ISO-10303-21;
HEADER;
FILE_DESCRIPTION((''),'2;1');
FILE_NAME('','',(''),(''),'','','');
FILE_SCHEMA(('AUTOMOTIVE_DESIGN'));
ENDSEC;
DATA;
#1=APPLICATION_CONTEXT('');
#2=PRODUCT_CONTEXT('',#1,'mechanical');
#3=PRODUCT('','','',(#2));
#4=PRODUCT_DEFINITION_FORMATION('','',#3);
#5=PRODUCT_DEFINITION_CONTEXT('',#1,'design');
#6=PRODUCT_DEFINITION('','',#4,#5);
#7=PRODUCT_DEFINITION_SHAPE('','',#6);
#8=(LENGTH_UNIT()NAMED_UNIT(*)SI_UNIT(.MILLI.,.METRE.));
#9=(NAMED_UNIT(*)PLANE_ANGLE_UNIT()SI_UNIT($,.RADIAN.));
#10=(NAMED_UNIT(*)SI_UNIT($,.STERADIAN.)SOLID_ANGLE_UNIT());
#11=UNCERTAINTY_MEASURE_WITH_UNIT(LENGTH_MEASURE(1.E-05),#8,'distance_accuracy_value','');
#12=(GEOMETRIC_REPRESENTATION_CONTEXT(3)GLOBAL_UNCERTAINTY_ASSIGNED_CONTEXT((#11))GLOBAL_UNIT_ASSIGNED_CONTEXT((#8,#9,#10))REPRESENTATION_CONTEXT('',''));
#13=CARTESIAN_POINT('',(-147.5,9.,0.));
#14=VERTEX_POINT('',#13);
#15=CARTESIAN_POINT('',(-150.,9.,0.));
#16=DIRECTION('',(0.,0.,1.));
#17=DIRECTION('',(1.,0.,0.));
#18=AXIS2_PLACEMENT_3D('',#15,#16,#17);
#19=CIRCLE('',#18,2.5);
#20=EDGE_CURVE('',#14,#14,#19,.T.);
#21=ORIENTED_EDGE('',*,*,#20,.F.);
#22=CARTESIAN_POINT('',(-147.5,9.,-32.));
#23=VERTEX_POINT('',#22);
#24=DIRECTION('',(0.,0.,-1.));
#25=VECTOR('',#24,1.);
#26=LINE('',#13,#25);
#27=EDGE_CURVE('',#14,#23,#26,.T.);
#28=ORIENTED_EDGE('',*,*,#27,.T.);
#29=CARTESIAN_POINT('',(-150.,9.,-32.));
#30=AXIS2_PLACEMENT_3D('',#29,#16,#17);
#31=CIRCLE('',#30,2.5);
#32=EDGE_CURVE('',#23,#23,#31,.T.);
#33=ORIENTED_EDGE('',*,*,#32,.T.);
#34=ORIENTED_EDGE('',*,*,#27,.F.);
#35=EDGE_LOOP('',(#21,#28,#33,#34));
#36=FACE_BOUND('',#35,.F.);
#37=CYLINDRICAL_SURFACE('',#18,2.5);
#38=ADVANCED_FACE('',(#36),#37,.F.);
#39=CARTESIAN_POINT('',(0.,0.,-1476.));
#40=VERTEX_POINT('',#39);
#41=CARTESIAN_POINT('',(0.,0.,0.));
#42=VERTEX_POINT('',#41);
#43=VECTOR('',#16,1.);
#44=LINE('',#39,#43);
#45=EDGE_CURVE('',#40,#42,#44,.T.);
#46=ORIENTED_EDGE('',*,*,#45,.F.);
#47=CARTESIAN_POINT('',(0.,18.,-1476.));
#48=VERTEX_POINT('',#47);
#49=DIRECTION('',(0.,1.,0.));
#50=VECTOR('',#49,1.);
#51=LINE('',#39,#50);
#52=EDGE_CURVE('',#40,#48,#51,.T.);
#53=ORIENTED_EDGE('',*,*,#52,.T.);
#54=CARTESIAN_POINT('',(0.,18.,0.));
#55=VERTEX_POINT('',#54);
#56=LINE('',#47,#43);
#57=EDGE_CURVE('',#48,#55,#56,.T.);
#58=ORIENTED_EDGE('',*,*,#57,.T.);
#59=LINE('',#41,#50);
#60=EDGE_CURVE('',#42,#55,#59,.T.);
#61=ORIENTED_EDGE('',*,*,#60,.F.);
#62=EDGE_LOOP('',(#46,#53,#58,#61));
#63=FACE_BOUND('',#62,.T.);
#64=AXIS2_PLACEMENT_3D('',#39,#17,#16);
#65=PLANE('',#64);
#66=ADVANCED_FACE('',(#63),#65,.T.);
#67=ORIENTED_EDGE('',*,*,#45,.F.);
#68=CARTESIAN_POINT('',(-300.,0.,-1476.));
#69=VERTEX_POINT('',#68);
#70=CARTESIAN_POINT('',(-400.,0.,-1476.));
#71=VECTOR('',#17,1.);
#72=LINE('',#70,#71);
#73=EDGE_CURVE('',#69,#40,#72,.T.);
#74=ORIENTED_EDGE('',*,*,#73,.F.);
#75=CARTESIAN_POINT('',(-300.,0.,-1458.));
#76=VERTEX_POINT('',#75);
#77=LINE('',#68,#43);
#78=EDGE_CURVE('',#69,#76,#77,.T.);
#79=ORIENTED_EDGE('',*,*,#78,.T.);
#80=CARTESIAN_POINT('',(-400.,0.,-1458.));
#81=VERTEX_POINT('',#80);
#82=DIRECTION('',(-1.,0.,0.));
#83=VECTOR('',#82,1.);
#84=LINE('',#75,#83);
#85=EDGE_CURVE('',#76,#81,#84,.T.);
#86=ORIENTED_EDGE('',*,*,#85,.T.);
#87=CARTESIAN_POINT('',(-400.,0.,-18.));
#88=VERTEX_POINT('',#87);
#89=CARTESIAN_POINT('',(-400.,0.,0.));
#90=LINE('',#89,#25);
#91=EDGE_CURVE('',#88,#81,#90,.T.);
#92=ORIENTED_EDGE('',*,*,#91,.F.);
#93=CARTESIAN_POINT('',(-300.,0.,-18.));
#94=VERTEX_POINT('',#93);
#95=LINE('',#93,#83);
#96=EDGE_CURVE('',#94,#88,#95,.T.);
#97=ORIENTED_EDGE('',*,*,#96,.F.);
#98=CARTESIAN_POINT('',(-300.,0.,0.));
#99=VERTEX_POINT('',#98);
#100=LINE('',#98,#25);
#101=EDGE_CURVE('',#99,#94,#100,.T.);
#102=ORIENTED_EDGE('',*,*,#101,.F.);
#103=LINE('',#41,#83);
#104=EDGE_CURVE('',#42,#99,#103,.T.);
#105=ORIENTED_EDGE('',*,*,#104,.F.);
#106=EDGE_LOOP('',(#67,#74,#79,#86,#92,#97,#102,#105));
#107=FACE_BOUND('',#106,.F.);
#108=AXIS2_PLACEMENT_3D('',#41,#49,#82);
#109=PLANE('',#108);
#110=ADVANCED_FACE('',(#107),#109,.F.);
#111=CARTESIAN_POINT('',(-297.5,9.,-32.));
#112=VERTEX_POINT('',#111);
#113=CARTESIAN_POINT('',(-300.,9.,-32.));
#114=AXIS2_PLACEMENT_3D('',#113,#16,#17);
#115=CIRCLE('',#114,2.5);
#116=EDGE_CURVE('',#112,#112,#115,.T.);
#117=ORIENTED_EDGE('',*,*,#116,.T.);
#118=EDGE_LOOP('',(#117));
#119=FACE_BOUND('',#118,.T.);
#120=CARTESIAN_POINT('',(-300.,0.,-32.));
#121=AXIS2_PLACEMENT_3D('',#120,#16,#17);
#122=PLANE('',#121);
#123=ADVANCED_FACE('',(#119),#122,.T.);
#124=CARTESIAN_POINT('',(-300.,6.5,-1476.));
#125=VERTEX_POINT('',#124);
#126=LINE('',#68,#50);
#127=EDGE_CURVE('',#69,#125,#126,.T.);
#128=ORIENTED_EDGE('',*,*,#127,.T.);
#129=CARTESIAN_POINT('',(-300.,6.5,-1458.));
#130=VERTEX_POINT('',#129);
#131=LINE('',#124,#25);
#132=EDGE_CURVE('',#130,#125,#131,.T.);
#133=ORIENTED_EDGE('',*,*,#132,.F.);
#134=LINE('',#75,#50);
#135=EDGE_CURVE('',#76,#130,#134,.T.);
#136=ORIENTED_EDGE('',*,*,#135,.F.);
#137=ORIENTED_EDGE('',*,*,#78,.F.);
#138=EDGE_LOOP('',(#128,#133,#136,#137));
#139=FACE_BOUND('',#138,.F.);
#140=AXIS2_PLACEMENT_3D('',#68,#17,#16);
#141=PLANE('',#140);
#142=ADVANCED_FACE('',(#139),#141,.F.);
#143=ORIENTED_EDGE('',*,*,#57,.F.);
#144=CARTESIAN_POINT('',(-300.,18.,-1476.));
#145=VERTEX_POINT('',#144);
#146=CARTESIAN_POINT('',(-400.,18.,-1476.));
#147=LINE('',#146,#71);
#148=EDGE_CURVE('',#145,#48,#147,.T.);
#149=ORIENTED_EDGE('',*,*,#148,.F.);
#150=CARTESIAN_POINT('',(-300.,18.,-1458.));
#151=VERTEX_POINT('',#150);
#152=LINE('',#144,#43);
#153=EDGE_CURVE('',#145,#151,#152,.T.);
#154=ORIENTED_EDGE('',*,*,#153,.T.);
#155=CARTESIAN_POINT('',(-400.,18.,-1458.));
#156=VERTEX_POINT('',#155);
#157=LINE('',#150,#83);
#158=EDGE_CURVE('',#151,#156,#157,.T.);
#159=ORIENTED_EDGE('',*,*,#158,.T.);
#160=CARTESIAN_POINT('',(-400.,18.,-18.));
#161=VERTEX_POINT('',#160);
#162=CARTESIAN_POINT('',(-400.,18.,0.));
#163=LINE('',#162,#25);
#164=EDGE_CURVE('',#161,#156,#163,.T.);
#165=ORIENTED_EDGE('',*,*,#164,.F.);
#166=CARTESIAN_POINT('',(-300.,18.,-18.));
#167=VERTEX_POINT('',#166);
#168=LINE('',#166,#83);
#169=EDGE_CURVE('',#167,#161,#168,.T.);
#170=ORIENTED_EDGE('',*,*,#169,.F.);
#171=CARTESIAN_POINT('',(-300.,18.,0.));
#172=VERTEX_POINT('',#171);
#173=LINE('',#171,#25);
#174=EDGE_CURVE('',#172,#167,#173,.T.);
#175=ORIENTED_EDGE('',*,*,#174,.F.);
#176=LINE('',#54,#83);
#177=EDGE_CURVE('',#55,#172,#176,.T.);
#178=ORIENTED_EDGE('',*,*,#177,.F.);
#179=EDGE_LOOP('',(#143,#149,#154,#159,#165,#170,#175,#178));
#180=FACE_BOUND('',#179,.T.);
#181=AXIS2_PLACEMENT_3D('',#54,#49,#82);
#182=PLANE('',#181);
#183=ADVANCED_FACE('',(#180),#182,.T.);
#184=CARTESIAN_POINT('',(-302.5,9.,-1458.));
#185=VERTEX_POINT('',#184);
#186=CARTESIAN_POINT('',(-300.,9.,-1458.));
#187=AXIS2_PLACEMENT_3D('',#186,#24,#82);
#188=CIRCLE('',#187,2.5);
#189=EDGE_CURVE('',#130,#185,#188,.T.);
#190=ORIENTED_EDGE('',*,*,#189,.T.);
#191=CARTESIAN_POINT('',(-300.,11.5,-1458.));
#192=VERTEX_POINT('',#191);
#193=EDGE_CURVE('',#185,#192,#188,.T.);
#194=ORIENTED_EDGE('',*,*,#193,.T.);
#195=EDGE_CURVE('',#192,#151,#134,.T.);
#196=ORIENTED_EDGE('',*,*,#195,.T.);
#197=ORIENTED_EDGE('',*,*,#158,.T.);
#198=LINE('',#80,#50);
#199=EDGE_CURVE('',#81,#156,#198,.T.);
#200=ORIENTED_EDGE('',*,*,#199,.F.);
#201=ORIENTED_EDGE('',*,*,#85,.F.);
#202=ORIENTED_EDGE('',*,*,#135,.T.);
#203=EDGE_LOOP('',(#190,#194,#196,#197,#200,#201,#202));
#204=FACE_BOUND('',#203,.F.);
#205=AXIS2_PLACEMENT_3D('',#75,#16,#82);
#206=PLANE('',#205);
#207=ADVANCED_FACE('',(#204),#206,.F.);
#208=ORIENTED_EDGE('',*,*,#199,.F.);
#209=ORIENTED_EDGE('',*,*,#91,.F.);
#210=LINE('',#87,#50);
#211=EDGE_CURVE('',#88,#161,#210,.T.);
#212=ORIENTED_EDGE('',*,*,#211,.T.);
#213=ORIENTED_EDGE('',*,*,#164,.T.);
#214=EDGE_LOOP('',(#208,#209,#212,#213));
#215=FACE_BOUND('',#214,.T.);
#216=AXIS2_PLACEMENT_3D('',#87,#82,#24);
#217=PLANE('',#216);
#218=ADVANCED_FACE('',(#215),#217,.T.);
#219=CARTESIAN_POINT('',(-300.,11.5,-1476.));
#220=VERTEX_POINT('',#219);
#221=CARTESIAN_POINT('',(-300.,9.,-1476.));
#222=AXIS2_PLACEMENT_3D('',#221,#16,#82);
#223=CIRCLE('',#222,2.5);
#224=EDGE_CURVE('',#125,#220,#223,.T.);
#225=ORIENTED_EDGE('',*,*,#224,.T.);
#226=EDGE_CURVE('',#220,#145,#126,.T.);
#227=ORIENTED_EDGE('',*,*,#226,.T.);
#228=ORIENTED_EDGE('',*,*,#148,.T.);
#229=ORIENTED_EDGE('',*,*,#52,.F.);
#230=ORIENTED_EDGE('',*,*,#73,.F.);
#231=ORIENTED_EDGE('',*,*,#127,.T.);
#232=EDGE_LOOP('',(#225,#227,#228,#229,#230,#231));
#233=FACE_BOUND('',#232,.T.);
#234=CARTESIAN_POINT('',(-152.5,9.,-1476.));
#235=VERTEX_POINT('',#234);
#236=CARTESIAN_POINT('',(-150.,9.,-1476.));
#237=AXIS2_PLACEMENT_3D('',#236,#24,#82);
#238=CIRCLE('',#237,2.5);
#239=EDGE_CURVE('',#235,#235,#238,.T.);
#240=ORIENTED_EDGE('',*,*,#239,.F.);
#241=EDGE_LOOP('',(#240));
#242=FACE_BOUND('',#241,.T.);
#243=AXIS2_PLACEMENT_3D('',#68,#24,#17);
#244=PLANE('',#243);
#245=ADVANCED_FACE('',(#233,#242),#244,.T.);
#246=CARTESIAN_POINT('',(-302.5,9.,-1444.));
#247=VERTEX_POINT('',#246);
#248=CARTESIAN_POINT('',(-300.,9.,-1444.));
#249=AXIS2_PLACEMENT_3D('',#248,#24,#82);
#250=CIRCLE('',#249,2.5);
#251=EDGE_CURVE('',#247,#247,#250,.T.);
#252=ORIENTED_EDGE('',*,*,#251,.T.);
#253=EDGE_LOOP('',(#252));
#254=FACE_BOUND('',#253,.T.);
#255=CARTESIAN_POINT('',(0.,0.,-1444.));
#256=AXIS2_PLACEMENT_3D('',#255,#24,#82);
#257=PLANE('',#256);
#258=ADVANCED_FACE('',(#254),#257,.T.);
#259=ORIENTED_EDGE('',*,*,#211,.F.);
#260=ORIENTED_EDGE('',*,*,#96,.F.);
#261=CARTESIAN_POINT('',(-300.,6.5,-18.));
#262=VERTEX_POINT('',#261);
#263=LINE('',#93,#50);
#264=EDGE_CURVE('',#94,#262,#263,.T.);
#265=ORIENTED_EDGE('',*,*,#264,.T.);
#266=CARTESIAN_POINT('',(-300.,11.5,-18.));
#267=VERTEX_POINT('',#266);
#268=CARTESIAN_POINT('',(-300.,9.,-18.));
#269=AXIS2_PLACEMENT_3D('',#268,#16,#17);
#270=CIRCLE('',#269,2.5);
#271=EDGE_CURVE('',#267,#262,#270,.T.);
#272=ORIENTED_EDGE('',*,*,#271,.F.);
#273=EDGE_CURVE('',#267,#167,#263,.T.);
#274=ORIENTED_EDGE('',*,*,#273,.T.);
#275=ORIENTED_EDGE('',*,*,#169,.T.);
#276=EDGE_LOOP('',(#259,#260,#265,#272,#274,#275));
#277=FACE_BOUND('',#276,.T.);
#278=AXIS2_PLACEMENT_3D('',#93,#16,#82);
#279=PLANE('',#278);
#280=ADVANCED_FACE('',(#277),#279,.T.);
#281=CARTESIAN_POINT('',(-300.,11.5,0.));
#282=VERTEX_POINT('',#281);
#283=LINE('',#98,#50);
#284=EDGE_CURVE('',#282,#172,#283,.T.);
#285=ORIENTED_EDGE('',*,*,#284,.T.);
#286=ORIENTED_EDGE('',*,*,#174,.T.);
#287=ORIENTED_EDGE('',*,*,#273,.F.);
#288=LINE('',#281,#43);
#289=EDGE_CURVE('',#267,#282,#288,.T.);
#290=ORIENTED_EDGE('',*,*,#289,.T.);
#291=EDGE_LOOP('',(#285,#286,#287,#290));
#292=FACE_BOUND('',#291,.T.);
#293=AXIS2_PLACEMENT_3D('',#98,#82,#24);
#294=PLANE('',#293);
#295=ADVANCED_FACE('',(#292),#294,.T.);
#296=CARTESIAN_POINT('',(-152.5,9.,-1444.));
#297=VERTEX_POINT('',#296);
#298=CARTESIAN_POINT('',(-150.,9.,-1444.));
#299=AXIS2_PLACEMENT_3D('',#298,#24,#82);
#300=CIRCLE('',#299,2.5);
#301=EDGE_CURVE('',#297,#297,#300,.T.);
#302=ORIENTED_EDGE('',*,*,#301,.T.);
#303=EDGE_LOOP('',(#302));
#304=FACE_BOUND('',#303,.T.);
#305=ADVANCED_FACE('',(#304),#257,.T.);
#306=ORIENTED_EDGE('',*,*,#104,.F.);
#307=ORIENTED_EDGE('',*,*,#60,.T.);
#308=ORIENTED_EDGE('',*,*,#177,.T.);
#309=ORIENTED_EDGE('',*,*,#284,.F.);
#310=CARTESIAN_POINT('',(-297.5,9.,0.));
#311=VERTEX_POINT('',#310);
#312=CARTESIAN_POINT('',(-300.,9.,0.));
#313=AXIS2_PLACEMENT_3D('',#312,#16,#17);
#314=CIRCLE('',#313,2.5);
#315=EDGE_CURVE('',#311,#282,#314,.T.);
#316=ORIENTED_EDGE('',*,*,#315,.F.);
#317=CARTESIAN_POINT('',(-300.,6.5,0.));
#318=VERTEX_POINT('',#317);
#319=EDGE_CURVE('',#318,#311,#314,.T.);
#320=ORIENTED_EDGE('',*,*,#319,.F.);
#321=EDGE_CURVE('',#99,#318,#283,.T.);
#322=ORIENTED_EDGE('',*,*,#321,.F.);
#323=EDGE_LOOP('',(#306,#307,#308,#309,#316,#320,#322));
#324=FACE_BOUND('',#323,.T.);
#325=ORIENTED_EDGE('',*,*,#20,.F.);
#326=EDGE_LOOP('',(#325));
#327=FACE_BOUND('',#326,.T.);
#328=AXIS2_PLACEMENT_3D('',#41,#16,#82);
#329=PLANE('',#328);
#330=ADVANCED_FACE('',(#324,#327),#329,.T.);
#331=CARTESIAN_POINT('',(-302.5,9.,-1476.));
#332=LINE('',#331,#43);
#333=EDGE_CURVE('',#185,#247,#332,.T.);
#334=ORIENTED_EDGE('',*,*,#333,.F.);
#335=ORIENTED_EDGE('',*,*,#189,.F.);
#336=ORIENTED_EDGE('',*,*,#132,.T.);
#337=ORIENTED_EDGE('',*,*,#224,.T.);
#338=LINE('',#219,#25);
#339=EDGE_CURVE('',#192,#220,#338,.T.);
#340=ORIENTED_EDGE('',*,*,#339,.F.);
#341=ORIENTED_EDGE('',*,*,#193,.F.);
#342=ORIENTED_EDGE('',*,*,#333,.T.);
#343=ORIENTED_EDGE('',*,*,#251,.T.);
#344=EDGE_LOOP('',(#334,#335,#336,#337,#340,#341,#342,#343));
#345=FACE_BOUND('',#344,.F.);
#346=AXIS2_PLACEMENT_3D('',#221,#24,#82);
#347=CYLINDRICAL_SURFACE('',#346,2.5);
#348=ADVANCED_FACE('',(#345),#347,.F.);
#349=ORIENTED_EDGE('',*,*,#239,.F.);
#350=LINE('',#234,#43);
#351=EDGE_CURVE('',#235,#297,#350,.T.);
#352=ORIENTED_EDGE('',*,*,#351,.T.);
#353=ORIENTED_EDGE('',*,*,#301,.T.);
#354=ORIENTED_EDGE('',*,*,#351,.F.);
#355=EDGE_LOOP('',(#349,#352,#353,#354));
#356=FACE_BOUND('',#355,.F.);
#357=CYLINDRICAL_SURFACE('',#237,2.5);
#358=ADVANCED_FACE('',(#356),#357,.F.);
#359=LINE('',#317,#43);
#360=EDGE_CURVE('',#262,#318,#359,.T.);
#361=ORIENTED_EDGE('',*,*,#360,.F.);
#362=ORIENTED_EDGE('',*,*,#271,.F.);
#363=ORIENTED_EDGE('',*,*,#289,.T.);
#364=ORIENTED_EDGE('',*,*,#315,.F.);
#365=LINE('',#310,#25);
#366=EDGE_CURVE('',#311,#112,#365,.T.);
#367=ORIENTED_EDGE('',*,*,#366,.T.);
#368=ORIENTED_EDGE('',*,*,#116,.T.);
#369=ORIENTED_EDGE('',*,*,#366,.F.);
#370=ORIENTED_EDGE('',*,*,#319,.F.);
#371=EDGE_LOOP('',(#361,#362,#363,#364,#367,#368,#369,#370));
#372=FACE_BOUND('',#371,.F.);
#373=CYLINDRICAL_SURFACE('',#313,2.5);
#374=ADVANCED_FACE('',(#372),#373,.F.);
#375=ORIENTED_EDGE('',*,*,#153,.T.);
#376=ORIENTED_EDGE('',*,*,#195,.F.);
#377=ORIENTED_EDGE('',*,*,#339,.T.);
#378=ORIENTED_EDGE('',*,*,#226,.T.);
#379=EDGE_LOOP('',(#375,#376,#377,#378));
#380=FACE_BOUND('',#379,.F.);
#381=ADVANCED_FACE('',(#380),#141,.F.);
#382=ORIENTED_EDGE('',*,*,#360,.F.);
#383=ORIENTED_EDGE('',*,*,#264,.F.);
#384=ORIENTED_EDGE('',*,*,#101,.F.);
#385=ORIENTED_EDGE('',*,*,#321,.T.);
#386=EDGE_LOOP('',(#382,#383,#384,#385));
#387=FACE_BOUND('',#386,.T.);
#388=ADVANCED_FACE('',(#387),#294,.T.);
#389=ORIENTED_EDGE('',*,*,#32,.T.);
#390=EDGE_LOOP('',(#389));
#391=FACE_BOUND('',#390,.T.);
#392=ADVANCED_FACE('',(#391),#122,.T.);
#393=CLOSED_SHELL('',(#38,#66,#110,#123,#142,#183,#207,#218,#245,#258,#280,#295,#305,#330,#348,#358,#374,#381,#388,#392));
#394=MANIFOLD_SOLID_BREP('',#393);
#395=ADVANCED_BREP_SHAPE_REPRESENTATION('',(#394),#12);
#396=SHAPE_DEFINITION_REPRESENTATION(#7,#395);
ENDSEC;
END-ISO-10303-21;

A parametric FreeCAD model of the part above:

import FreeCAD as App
import Part
import Sketcher
from FreeCAD import Vector


def add_polygon(sketch, points):
    """Adds a closed chain of lines whose ends are joined by coincident constraints."""
    first, n = sketch.GeometryCount, len(points)
    for a, b in zip(points, points[1:] + points[:1]):
        sketch.addGeometry(Part.LineSegment(App.Vector(*a, 0), App.Vector(*b, 0)), False)
    for i in range(n):
        sketch.addConstraint(Sketcher.Constraint("Coincident", first + i, 2, first + (i + 1) % n, 1))

doc = App.newDocument("Part")
body = doc.addObject("PartDesign::Body", "Body")

# Sketch on XZ plane
sketch1 = body.newObject("Sketcher::SketchObject", "Sketch")
sketch1.AttachmentSupport = (doc.getObject("XZ_Plane"), [""])
sketch1.MapMode = "FlatFace"
add_polygon(sketch1, [(-300, 0), (0, 0), (0, -1476), (-300, -1476), (-300, -1458), (-400, -1458), (-400, -18), (-300, -18)])  # lines 0-7
sketch1.addConstraint([
    Sketcher.Constraint("Horizontal", 0),
    Sketcher.Constraint("Vertical", 1),
    Sketcher.Constraint("Horizontal", 2),
    Sketcher.Constraint("Vertical", 3),
    Sketcher.Constraint("Horizontal", 4),
    Sketcher.Constraint("Vertical", 5),
    Sketcher.Constraint("Horizontal", 6),
    Sketcher.Constraint("Vertical", 7),
    Sketcher.Constraint("Coincident", 0, 2, -1, 1),
    Sketcher.Constraint("Vertical", 3, 2, 6, 2),
    Sketcher.Constraint("Equal", 3, 7),
    Sketcher.Constraint("DistanceX", 4, 2, 4, 1, 100.0),
    Sketcher.Constraint("DistanceY", 1, 2, 1, 1, 1476.0),
    Sketcher.Constraint("DistanceY", 3, 1, 3, 2, 18.0),
    Sketcher.Constraint("DistanceX", 4, 2, -1, 1, 400.0),
])
pad1 = body.newObject("PartDesign::Pad", "Pad")
pad1.Profile = sketch1
pad1.Length = 18
pad1.Reversed = True

# Sketch on XY plane
sketch2 = body.newObject("Sketcher::SketchObject", "Sketch001")
sketch2.AttachmentSupport = (doc.getObject("XY_Plane"), [""])
sketch2.MapMode = "FlatFace"
sketch2.AttachmentOffset = App.Placement(Vector(0, 0, -1476), App.Rotation())
sketch2.addGeometry([
    Part.Circle(Vector(-300, 9, 0), Vector(0, 0, 1), 2.5),
    Part.Circle(Vector(-150, 9, 0), Vector(0, 0, 1), 2.5),
], False)
sketch2.addConstraint([
    Sketcher.Constraint("Equal", 0, 1),
    Sketcher.Constraint("Horizontal", 0, 3, 1, 3),
    Sketcher.Constraint("Diameter", 0, 5.0),
    Sketcher.Constraint("DistanceX", 0, 3, -1, 1, 300.0),
    Sketcher.Constraint("DistanceY", -1, 1, 0, 3, 9.0),
    Sketcher.Constraint("DistanceX", 1, 3, -1, 1, 150.0),
])
pocket1 = body.newObject("PartDesign::Pocket", "Pocket")
pocket1.Profile = sketch2
pocket1.Length = 32
pocket1.Reversed = True

# Sketch on XY plane
sketch3 = body.newObject("Sketcher::SketchObject", "Sketch002")
sketch3.AttachmentSupport = (doc.getObject("XY_Plane"), [""])
sketch3.MapMode = "FlatFace"
sketch3.addGeometry([
    Part.Circle(Vector(-150, 9, 0), Vector(0, 0, 1), 2.5),
    Part.Circle(Vector(-300, 9, 0), Vector(0, 0, 1), 2.5),
], False)
sketch3.addConstraint([
    Sketcher.Constraint("Equal", 0, 1),
    Sketcher.Constraint("Horizontal", 0, 3, 1, 3),
    Sketcher.Constraint("Diameter", 0, 5.0),
    Sketcher.Constraint("DistanceX", 0, 3, -1, 1, 150.0),
    Sketcher.Constraint("DistanceY", -1, 1, 0, 3, 9.0),
    Sketcher.Constraint("DistanceX", 1, 3, -1, 1, 300.0),
])
pocket2 = body.newObject("PartDesign::Pocket", "Pocket001")
pocket2.Profile = sketch3
pocket2.Length = 32

doc.recompute()
